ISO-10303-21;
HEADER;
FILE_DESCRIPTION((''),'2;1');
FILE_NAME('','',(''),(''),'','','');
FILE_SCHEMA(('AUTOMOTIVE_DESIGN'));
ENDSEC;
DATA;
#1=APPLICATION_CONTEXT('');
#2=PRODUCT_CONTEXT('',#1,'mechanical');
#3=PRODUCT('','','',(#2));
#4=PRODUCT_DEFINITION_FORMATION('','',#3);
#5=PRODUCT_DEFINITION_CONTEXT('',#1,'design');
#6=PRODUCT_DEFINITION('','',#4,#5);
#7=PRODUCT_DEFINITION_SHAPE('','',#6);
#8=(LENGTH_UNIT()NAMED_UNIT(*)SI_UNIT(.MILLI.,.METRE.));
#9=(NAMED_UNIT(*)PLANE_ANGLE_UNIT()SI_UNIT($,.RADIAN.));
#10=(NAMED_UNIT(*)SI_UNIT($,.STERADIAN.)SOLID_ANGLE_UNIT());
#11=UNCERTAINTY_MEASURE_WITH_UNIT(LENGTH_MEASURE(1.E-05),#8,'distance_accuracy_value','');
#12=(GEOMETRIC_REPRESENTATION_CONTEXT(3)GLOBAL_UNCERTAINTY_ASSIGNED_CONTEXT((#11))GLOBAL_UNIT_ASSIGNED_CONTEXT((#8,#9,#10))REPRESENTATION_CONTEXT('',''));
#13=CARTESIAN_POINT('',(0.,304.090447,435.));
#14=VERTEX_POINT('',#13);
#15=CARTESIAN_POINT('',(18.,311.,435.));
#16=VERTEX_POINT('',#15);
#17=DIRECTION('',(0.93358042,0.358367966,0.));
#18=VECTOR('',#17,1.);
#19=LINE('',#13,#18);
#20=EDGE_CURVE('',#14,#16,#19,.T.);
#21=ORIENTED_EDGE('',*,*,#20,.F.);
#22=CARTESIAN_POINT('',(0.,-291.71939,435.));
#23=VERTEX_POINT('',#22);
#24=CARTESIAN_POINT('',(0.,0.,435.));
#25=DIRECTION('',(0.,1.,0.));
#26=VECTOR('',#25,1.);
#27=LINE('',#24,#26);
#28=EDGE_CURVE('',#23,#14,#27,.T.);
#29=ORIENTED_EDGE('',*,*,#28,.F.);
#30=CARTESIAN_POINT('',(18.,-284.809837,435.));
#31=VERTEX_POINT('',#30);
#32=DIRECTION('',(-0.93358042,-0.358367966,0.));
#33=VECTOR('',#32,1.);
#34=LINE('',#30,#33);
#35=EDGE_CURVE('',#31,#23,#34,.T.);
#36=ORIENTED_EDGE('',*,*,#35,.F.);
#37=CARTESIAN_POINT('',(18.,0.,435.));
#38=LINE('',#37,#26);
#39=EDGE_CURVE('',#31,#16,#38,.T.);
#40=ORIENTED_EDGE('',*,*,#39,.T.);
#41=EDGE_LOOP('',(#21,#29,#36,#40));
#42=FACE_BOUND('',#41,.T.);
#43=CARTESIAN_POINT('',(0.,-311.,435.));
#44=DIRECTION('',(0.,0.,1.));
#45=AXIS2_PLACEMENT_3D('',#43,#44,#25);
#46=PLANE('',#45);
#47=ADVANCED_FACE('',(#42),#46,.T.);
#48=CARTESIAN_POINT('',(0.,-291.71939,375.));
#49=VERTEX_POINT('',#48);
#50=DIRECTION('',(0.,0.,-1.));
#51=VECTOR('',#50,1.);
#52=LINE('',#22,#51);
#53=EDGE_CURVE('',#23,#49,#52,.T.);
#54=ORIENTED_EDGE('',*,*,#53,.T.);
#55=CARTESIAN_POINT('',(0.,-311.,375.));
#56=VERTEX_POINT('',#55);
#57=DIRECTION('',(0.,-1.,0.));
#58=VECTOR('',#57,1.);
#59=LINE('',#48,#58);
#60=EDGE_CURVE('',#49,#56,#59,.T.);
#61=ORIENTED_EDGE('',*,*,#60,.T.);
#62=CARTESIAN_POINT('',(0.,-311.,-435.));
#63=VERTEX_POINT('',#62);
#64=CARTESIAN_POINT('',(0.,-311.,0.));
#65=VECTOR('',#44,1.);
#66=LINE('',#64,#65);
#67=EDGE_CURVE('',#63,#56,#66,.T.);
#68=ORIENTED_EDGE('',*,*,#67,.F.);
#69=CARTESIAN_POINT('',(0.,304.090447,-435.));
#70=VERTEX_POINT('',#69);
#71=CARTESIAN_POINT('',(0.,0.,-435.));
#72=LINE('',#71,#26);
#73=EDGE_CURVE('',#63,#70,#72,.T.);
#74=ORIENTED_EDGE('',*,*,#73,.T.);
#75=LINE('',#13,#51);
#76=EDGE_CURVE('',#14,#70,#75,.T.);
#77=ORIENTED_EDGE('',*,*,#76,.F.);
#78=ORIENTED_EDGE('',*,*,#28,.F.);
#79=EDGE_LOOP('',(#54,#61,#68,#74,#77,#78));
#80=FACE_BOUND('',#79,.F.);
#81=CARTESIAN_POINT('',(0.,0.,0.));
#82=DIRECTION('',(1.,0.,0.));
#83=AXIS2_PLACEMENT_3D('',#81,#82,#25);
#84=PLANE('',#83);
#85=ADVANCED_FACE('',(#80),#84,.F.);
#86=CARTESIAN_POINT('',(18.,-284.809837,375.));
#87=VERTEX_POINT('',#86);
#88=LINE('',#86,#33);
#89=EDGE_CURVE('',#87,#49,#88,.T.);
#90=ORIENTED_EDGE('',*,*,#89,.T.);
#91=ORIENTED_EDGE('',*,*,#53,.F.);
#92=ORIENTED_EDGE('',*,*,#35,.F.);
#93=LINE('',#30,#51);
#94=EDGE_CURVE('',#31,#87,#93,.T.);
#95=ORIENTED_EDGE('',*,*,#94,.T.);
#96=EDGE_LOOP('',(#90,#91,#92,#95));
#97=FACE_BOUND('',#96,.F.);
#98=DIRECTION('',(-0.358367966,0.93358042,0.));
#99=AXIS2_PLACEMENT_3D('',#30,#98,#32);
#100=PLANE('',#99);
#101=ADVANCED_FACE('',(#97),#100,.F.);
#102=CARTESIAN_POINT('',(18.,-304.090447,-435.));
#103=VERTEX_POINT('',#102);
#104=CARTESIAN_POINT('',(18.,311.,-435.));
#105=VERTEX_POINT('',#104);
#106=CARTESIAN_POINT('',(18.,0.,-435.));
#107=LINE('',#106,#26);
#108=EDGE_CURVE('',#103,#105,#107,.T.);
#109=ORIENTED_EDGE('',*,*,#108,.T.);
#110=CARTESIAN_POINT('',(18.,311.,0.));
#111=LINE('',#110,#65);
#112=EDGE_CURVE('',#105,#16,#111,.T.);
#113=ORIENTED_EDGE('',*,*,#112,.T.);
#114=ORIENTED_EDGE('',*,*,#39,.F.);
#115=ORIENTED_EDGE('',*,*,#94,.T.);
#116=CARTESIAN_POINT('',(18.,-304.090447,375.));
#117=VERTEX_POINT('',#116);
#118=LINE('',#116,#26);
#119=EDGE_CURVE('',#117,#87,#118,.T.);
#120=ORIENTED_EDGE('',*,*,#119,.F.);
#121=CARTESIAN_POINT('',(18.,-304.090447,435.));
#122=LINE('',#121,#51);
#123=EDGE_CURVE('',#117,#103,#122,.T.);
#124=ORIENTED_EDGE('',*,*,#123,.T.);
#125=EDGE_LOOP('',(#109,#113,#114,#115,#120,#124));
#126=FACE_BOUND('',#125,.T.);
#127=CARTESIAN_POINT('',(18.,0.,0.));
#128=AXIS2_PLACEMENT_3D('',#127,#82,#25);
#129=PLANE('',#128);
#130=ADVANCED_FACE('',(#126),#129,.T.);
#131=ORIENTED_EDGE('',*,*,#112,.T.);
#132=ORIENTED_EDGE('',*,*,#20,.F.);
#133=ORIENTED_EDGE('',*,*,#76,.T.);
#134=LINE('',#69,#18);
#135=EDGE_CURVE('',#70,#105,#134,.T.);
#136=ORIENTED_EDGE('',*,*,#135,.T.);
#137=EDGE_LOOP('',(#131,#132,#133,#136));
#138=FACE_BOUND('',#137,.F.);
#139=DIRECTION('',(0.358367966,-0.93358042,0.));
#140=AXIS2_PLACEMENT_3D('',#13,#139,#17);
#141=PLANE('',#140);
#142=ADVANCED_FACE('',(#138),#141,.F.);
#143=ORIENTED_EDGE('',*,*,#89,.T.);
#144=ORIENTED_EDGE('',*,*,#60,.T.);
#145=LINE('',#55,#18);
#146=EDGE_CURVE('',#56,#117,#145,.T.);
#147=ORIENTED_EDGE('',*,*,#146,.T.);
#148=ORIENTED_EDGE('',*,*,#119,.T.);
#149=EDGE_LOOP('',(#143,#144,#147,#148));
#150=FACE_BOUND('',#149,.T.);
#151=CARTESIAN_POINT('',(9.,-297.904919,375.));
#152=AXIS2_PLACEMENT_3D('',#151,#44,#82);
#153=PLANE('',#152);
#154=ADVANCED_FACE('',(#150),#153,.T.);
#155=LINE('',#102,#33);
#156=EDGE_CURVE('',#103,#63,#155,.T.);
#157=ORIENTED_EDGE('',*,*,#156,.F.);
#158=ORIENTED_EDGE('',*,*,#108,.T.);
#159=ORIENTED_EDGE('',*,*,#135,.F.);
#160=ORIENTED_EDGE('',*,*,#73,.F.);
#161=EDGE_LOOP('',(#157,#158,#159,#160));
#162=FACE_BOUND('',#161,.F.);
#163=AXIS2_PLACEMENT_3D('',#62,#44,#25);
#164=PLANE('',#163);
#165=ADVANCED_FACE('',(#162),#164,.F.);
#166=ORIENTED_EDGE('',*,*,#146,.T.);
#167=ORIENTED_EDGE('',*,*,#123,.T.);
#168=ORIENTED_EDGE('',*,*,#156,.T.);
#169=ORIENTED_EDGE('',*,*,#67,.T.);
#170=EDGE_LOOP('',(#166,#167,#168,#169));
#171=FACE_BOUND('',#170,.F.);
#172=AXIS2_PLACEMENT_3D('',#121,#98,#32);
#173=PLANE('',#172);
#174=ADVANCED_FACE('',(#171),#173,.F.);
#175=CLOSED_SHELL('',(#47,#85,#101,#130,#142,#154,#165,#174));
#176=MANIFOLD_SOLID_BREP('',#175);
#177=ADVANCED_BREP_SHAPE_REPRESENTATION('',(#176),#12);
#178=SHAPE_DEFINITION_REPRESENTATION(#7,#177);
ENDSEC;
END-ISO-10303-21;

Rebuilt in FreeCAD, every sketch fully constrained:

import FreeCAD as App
import Part
import Sketcher

V = App.Vector
Q = App.Units.Quantity


def add_polygon(sketch, points):
    """Adds a closed chain of lines whose ends are joined by coincident constraints."""
    first, n = sketch.GeometryCount, len(points)
    for a, b in zip(points, points[1:] + points[:1]):
        sketch.addGeometry(Part.LineSegment(App.Vector(*a, 0), App.Vector(*b, 0)), False)
    for i in range(n):
        sketch.addConstraint(Sketcher.Constraint("Coincident", first + i, 2, first + (i + 1) % n, 1))

doc = App.newDocument("Part")
body = doc.addObject("PartDesign::Body", "Body")

sketch1 = body.newObject("Sketcher::SketchObject", "Sketch")
sketch1.AttachmentSupport = (doc.getObject("YZ_Plane"), [""])
sketch1.MapMode = "FlatFace"
add_polygon(sketch1, [(-311, 435), (-311, -435), (311, -435), (311, 435)])
sketch1.addConstraint(Sketcher.Constraint("Vertical", 0))
sketch1.addConstraint(Sketcher.Constraint("Horizontal", 1))
sketch1.addConstraint(Sketcher.Constraint("Vertical", 2))
sketch1.addConstraint(Sketcher.Constraint("Horizontal", 3))
sketch1.addConstraint(Sketcher.Constraint("Symmetric", 0, 2, 2, 2, -1, 1))
sketch1.addConstraint(Sketcher.Constraint("DistanceX", 1, 1, 1, 2, 622.0))
sketch1.addConstraint(Sketcher.Constraint("DistanceY", 0, 2, 0, 1, 870.0))
pad1 = body.newObject("PartDesign::Pad", "Pad")
pad1.Profile = sketch1
pad1.Length = 18

sketch2 = body.newObject("Sketcher::SketchObject", "Sketch001")
sketch2.AttachmentSupport = (doc.getObject("XY_Plane"), [""])
sketch2.MapMode = "FlatFace"
sketch2.AttachmentOffset = App.Placement(V(0, 0, 435), App.Rotation())
add_polygon(sketch2, [(0, 304), (18, 311), (0, 311)])
add_polygon(sketch2, [(18, -304), (0, -311), (18, -311)])
sketch2.addConstraint(Sketcher.Constraint("Horizontal", 1))
sketch2.addConstraint(Sketcher.Constraint("Vertical", 2))
sketch2.addConstraint(Sketcher.Constraint("Horizontal", 4))
sketch2.addConstraint(Sketcher.Constraint("Vertical", 5))
sketch2.addConstraint(Sketcher.Constraint("Symmetric", 1, 2, 3, 2, -1, 1))
sketch2.addConstraint(Sketcher.Constraint("PointOnObject", 1, 2, -2))
sketch2.addConstraint(Sketcher.Constraint("Parallel", 0, 3))
sketch2.addConstraint(Sketcher.Constraint("Vertical", 0, 2, 4, 2))
sketch2.addConstraint(Sketcher.Constraint("DistanceX", 1, 2, 1, 1, 18.0))
sketch2.addConstraint(Sketcher.Constraint("Angle", 0, Q("21.000001 deg")))
sketch2.addConstraint(Sketcher.Constraint("DistanceY", -1, 1, 0, 2, 311.0))
pocket1 = body.newObject("PartDesign::Pocket", "Pocket")
pocket1.Profile = sketch2
pocket1.Length = 870

sketch3 = body.newObject("Sketcher::SketchObject", "Sketch002")
sketch3.AttachmentSupport = (doc.getObject("XY_Plane"), [""])
sketch3.MapMode = "FlatFace"
sketch3.AttachmentOffset = App.Placement(V(0, 0, 435), App.Rotation())
add_polygon(sketch3, [(0, -292), (0, -311), (18, -304), (18, -285)])
sketch3.addConstraint(Sketcher.Constraint("Vertical", 0))
sketch3.addConstraint(Sketcher.Constraint("Vertical", 2))
sketch3.addConstraint(Sketcher.Constraint("PointOnObject", 0, 2, -2))
sketch3.addConstraint(Sketcher.Constraint("Parallel", 1, 3))
sketch3.addConstraint(Sketcher.Constraint("Angle", 1, Q("21.000001 deg")))
sketch3.addConstraint(Sketcher.Constraint("DistanceY", 0, 2, -1, 1, 311.0))
sketch3.addConstraint(Sketcher.Constraint("DistanceX", -1, 1, 1, 2, 18.0))
sketch3.addConstraint(Sketcher.Constraint("DistanceY", 0, 2, 0, 1, 19.28061))
pocket2 = body.newObject("PartDesign::Pocket", "Pocket001")
pocket2.Profile = sketch3
pocket2.Length = 60

doc.recompute()
